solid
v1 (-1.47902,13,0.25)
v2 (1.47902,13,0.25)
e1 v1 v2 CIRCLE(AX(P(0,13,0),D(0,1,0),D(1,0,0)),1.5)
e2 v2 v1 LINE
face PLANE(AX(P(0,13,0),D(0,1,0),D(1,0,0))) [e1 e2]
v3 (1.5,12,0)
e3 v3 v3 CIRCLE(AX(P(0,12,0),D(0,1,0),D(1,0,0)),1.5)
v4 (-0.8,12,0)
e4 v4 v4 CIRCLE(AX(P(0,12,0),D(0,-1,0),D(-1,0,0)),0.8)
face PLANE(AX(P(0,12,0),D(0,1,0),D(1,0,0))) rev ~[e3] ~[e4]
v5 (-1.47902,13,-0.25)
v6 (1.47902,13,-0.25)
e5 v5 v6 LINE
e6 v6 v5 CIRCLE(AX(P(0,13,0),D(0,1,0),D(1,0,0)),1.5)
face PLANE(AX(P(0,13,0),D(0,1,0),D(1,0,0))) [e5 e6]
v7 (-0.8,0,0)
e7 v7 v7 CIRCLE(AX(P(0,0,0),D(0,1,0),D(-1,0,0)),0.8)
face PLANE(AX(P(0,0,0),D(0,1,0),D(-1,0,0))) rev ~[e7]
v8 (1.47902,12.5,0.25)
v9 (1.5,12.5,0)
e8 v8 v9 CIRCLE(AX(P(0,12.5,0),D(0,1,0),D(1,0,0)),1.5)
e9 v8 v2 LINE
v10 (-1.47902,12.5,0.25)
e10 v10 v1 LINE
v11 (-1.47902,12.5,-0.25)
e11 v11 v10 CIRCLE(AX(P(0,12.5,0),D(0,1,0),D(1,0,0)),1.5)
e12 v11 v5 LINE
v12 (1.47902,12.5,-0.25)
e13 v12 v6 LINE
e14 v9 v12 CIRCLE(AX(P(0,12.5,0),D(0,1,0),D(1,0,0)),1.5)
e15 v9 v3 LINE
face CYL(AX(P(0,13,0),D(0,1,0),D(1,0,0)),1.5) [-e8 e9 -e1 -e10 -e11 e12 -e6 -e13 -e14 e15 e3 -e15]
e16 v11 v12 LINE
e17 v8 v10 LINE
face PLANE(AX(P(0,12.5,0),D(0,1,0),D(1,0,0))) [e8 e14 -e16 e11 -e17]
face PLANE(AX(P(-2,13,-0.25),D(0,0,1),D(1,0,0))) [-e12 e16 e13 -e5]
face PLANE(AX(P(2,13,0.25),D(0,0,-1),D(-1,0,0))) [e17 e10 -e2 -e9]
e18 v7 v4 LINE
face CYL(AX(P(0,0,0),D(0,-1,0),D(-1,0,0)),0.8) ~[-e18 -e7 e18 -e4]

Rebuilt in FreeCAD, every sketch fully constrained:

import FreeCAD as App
import Part
import Sketcher
from FreeCAD import Vector


def add_polygon(sketch, points):
    """Adds a closed chain of lines whose ends are joined by coincident constraints."""
    first, n = sketch.GeometryCount, len(points)
    for a, b in zip(points, points[1:] + points[:1]):
        sketch.addGeometry(Part.LineSegment(App.Vector(*a, 0), App.Vector(*b, 0)), False)
    for i in range(n):
        sketch.addConstraint(Sketcher.Constraint("Coincident", first + i, 2, first + (i + 1) % n, 1))

doc = App.newDocument("Part")
body = doc.addObject("PartDesign::Body", "Body")

sketch1 = doc.addObject("Sketcher::SketchObject", "Sketch")
body.addObject(sketch1)
sketch1.AttachmentSupport = (doc.XZ_Plane, [""])
sketch1.MapMode = "FlatFace"
sketch1.addGeometry(Part.Circle(Vector(0, 0, 0), Vector(0, 0, 1), 0.8), False)
sketch1.addConstraint(Sketcher.Constraint("Coincident", 0, 3, -1, 1))
sketch1.addConstraint(Sketcher.Constraint("Diameter", 0, 1.6))
pad1 = doc.addObject("PartDesign::Pad", "Pad")
body.addObject(pad1)
pad1.Profile = sketch1
pad1.Length = 13
pad1.Reversed = True

sketch2 = doc.addObject("Sketcher::SketchObject", "Sketch001")
body.addObject(sketch2)
sketch2.AttachmentSupport = (doc.XZ_Plane, [""])
sketch2.MapMode = "FlatFace"
sketch2.AttachmentOffset = App.Placement(Vector(0, 0, -13), App.Rotation())
sketch2.addGeometry(Part.Circle(Vector(0, 0, 0), Vector(0, 0, 1), 1.5), False)
sketch2.addGeometry(Part.Circle(Vector(0, 0, 0), Vector(0, 0, 1), 0.8), False)
sketch2.addConstraint(Sketcher.Constraint("Coincident", 0, 3, -1, 1))
sketch2.addConstraint(Sketcher.Constraint("Coincident", 1, 3, -1, 1))
sketch2.addConstraint(Sketcher.Constraint("Diameter", 0, 3.0))
sketch2.addConstraint(Sketcher.Constraint("Diameter", 1, 1.6))
pad2 = doc.addObject("PartDesign::Pad", "Pad001")
body.addObject(pad2)
pad2.Profile = sketch2
pad2.Length = 1

sketch3 = doc.addObject("Sketcher::SketchObject", "Sketch002")
body.addObject(sketch3)
sketch3.AttachmentSupport = (doc.XZ_Plane, [""])
sketch3.MapMode = "FlatFace"
sketch3.AttachmentOffset = App.Placement(Vector(0, 0, -13), App.Rotation())
add_polygon(sketch3, [(-2, 0.25), (2, 0.25), (2, -0.25), (-2, -0.25)])
sketch3.addConstraint(Sketcher.Constraint("Horizontal", 0))
sketch3.addConstraint(Sketcher.Constraint("Vertical", 1))
sketch3.addConstraint(Sketcher.Constraint("Horizontal", 2))
sketch3.addConstraint(Sketcher.Constraint("Vertical", 3))
sketch3.addConstraint(Sketcher.Constraint("Symmetric", 0, 2, 2, 2, -1, 1))
sketch3.addConstraint(Sketcher.Constraint("DistanceX", 0, 1, 0, 2, 4.0))
sketch3.addConstraint(Sketcher.Constraint("DistanceY", 1, 2, 1, 1, 0.5))
pocket1 = doc.addObject("PartDesign::Pocket", "Pocket")
body.addObject(pocket1)
pocket1.Profile = sketch3
pocket1.Length = 0.5
pocket1.Reversed = True

doc.recompute()
